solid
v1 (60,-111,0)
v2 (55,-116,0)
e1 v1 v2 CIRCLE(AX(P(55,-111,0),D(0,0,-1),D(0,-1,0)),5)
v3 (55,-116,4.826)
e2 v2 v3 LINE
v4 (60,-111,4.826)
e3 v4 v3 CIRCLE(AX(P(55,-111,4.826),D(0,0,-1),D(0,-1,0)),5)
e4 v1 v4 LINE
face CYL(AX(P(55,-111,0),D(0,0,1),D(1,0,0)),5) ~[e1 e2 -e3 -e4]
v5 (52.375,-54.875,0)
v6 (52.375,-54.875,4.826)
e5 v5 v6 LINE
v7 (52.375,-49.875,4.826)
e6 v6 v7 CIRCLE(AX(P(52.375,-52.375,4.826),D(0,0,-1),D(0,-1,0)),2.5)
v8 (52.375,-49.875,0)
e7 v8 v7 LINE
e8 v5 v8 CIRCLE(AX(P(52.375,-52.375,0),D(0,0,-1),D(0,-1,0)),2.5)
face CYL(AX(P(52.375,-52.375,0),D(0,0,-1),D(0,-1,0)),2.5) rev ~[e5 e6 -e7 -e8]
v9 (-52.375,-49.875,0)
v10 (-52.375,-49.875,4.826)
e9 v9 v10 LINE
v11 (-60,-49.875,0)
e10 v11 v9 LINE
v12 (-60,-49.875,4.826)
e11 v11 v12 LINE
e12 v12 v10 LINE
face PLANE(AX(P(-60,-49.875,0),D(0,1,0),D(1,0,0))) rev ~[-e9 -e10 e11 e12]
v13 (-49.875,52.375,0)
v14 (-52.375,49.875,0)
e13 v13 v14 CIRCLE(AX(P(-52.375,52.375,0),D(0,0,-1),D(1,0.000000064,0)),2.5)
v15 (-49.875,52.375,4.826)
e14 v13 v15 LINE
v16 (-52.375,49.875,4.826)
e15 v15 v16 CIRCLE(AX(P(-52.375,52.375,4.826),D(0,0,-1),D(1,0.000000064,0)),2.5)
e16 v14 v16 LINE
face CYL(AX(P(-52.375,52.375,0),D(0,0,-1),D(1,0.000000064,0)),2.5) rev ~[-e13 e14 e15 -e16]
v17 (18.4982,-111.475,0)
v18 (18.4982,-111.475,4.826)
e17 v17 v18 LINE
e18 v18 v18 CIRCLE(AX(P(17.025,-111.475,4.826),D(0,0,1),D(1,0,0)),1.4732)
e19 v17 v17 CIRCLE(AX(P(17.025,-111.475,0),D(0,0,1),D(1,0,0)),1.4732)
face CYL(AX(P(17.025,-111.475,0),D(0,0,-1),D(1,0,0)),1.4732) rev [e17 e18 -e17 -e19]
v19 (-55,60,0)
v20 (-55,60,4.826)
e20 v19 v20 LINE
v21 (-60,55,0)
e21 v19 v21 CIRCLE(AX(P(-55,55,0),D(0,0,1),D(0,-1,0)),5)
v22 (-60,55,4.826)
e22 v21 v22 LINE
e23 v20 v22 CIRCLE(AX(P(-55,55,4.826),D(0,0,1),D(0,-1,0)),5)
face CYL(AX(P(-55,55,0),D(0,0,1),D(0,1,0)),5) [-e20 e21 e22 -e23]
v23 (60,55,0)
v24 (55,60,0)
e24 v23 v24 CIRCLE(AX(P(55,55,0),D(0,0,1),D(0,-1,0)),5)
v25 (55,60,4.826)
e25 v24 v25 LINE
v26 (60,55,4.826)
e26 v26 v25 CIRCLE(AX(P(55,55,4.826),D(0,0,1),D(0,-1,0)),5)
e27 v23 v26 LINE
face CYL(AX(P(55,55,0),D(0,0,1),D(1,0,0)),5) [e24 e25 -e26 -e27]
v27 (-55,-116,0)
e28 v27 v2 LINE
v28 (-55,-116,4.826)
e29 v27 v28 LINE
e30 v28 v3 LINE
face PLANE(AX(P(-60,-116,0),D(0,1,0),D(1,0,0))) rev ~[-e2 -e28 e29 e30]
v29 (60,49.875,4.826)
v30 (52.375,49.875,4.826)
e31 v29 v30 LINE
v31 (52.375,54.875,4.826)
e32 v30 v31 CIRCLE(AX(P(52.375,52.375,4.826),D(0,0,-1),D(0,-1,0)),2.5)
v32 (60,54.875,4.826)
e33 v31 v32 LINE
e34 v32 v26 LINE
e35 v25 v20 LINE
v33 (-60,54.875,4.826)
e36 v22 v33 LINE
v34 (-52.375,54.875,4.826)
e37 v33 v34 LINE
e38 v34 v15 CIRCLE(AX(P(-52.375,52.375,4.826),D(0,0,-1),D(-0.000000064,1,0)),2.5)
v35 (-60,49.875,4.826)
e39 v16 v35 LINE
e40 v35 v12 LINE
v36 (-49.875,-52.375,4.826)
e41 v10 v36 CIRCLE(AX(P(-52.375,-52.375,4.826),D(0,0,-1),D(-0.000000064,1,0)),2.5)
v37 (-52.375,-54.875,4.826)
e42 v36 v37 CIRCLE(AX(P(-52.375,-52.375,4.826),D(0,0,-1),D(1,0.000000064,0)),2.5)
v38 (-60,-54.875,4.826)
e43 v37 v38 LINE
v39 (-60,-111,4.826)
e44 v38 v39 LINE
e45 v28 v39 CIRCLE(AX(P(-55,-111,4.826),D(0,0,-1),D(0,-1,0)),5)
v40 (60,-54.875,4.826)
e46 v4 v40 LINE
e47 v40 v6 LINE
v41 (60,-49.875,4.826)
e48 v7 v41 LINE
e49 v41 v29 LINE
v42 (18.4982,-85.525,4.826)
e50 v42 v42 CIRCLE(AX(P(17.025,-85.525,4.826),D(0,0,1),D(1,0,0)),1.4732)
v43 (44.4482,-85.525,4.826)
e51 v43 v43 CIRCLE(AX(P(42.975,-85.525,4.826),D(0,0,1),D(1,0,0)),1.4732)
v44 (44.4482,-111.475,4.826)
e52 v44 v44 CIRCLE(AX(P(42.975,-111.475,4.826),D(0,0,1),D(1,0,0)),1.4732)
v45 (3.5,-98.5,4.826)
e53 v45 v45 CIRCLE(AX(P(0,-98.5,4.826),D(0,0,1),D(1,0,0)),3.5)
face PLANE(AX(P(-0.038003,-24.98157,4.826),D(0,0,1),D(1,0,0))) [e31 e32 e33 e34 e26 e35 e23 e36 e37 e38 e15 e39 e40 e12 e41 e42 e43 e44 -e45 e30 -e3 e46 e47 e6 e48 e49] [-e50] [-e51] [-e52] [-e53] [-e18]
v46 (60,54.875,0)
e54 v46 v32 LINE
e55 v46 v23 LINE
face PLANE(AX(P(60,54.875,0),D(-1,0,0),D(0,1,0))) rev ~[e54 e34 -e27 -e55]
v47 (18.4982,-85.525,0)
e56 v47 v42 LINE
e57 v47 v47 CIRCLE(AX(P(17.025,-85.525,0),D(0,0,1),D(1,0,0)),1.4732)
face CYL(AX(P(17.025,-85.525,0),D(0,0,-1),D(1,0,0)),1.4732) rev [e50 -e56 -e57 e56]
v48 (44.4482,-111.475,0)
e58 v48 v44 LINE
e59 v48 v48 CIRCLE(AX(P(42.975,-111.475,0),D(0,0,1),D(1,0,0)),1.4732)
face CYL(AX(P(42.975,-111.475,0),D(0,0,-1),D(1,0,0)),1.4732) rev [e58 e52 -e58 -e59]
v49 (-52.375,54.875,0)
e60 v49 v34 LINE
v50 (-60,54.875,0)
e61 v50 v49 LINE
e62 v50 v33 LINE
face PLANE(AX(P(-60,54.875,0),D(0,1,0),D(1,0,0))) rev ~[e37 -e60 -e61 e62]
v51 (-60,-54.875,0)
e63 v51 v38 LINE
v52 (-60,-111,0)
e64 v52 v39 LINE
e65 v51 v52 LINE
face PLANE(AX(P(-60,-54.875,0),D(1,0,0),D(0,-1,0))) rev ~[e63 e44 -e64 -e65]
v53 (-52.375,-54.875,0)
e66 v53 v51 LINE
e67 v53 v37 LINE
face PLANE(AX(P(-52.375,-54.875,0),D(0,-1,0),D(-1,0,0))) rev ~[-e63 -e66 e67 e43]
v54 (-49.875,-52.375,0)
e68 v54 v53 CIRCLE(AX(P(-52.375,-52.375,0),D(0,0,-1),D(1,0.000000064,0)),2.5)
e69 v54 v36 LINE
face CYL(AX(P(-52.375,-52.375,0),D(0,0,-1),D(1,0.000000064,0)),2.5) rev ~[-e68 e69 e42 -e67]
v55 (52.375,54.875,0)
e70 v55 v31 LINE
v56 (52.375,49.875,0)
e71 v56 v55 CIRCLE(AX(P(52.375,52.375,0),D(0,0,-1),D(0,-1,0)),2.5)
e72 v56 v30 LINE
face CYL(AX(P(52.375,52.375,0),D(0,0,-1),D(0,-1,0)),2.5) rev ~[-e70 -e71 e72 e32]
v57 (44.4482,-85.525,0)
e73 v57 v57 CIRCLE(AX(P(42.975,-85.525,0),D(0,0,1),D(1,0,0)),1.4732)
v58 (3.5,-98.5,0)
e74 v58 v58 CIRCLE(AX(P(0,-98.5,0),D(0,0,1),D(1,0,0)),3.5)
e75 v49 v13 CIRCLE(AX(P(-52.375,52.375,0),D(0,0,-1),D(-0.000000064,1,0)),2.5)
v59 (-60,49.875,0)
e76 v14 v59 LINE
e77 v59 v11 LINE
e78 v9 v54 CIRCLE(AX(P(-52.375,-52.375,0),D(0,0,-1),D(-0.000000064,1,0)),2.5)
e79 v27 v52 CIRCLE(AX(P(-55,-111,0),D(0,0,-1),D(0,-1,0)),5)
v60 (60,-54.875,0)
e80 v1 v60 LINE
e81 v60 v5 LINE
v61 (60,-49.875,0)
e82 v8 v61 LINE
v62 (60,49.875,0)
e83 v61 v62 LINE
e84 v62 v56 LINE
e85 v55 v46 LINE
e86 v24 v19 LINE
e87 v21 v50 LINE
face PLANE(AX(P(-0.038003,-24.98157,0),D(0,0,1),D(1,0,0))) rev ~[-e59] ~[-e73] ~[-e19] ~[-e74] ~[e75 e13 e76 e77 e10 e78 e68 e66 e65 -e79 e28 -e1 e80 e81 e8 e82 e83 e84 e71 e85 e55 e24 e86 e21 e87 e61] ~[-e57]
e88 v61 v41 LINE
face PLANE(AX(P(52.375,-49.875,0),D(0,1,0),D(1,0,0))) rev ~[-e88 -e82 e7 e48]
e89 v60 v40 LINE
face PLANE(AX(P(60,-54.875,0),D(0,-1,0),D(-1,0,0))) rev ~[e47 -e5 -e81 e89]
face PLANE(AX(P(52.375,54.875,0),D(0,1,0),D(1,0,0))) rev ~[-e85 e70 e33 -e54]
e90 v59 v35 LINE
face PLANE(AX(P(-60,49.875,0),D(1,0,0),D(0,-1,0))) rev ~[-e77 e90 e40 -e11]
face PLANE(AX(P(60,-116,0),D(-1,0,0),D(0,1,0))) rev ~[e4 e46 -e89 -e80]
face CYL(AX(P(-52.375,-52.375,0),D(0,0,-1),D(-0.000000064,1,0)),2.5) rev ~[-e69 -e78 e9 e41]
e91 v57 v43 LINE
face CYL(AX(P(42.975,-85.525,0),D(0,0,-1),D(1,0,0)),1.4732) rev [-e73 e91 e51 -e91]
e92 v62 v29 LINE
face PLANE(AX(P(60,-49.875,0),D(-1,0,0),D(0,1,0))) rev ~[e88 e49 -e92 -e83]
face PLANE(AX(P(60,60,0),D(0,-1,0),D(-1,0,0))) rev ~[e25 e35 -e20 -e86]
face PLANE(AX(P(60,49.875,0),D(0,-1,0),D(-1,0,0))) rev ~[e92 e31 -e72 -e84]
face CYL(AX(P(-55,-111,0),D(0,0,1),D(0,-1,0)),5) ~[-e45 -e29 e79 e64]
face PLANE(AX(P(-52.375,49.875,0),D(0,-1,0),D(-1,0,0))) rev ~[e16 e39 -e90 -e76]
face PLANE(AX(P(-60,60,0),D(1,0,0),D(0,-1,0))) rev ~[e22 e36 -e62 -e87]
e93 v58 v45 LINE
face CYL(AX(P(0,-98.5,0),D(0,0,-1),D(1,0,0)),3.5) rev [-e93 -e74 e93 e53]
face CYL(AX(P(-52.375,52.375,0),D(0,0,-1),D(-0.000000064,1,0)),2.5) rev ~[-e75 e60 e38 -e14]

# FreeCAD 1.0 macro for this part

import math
import FreeCAD as App
import Part
import Sketcher


def edges_at(feature, points):
    """Names of the edges that pass closest to the given points."""
    edges = feature.Shape.Edges
    near = lambda p: min(range(len(edges)), key=lambda i: edges[i].distToShape(Part.Vertex(*p))[0])
    return sorted({f"Edge{near(p) + 1}" for p in points})

doc = App.newDocument("Part")
params = doc.addObject("Spreadsheet::Sheet", "Params")
for row, (alias, value) in enumerate([
    ("sketch1_diameter", "7 mm"),
    ("sketch1_radius", "2.5 mm"),
    ("sketch1_width", "120 mm"),
    ("sketch1_height", "99.75 mm"),
    ("pad1_length", "4.826 mm"),
    ("fillet_radius", "5 mm"),
], start=1):
    params.set(f"A{row}", alias)
    params.set(f"B{row}", "=" + value)
    params.setAlias(f"B{row}", alias)

body = doc.addObject("PartDesign::Body", "Body")

# Sketch on XY plane
sketch1 = body.newObject("Sketcher::SketchObject", "Sketch")
sketch1.AttachmentSupport = (doc.getObject("XY_Plane"), [""])
sketch1.MapMode = "FlatFace"
sketch1.addGeometry([
    Part.LineSegment(App.Vector(60, 54.9, 0), App.Vector(60, 60, 0)),  # 0
    Part.LineSegment(App.Vector(60, 60, 0), App.Vector(-60, 60, 0)),  # 1
    Part.LineSegment(App.Vector(-60, 60, 0), App.Vector(-60, 54.9, 0)),  # 2
    Part.LineSegment(App.Vector(-60, 54.9, 0), App.Vector(-52.4, 54.9, 0)),  # 3
    Part.ArcOfCircle(Part.Circle(App.Vector(-52.4, 52.4, 0), App.Vector(0, 0, 1), 2.5), math.radians(0), math.radians(90)),  # 4
    Part.ArcOfCircle(Part.Circle(App.Vector(-52.4, 52.4, 0), App.Vector(0, 0, 1), 2.5), math.radians(-90), math.radians(0)),  # 5
    Part.LineSegment(App.Vector(-52.4, 49.9, 0), App.Vector(-60, 49.9, 0)),  # 6
    Part.LineSegment(App.Vector(-60, 49.9, 0), App.Vector(-60, -49.9, 0)),  # 7
    Part.LineSegment(App.Vector(-60, -49.9, 0), App.Vector(-52.4, -49.9, 0)),  # 8
    Part.ArcOfCircle(Part.Circle(App.Vector(-52.4, -52.4, 0), App.Vector(0, 0, 1), 2.5), math.radians(0), math.radians(90)),  # 9
    Part.ArcOfCircle(Part.Circle(App.Vector(-52.4, -52.4, 0), App.Vector(0, 0, 1), 2.5), math.radians(-90), math.radians(0)),  # 10
    Part.LineSegment(App.Vector(-52.4, -54.9, 0), App.Vector(-60, -54.9, 0)),  # 11
    Part.LineSegment(App.Vector(-60, -54.9, 0), App.Vector(-60, -116, 0)),  # 12
    Part.LineSegment(App.Vector(-60, -116, 0), App.Vector(60, -116, 0)),  # 13
    Part.LineSegment(App.Vector(60, -116, 0), App.Vector(60, -54.9, 0)),  # 14
    Part.LineSegment(App.Vector(60, -54.9, 0), App.Vector(52.4, -54.9, 0)),  # 15
    Part.ArcOfCircle(Part.Circle(App.Vector(52.4, -52.4, 0), App.Vector(0, 0, 1), 2.5), math.radians(90), math.radians(270)),  # 16
    Part.LineSegment(App.Vector(52.4, -49.9, 0), App.Vector(60, -49.9, 0)),  # 17
    Part.LineSegment(App.Vector(60, -49.9, 0), App.Vector(60, 49.9, 0)),  # 18
    Part.LineSegment(App.Vector(60, 49.9, 0), App.Vector(52.4, 49.9, 0)),  # 19
    Part.ArcOfCircle(Part.Circle(App.Vector(52.4, 52.4, 0), App.Vector(0, 0, 1), 2.5), math.radians(90), math.radians(270)),  # 20
    Part.LineSegment(App.Vector(52.4, 54.9, 0), App.Vector(60, 54.9, 0)),  # 21
    Part.Circle(App.Vector(17, -111.5, 0), App.Vector(0, 0, 1), 1.5),  # 22
    Part.Circle(App.Vector(43, -111.5, 0), App.Vector(0, 0, 1), 1.5),  # 23
    Part.Circle(App.Vector(0, -98.5, 0), App.Vector(0, 0, 1), 3.5),  # 24
    Part.Circle(App.Vector(17, -85.5, 0), App.Vector(0, 0, 1), 1.5),  # 25
    Part.Circle(App.Vector(43, -85.5, 0), App.Vector(0, 0, 1), 1.5),  # 26
], False)
sketch1.addConstraint([
    Sketcher.Constraint("Coincident", 0, 2, 1, 1),
    Sketcher.Constraint("Coincident", 1, 2, 2, 1),
    Sketcher.Constraint("Coincident", 2, 2, 3, 1),
    Sketcher.Constraint("Tangent", 3, 2, 4, 2),
    Sketcher.Constraint("Tangent", 4, 1, 5, 2),
    Sketcher.Constraint("Tangent", 5, 1, 6, 1),
    Sketcher.Constraint("Coincident", 6, 2, 7, 1),
    Sketcher.Constraint("Coincident", 7, 2, 8, 1),
    Sketcher.Constraint("Tangent", 8, 2, 9, 2),
    Sketcher.Constraint("Tangent", 9, 1, 10, 2),
    Sketcher.Constraint("Tangent", 10, 1, 11, 1),
    Sketcher.Constraint("Coincident", 11, 2, 12, 1),
    Sketcher.Constraint("Coincident", 12, 2, 13, 1),
    Sketcher.Constraint("Coincident", 13, 2, 14, 1),
    Sketcher.Constraint("Coincident", 14, 2, 15, 1),
    Sketcher.Constraint("Tangent", 15, 2, 16, 2),
    Sketcher.Constraint("Tangent", 16, 1, 17, 1),
    Sketcher.Constraint("Coincident", 17, 2, 18, 1),
    Sketcher.Constraint("Coincident", 18, 2, 19, 1),
    Sketcher.Constraint("Tangent", 19, 2, 20, 2),
    Sketcher.Constraint("Tangent", 20, 1, 21, 1),
    Sketcher.Constraint("Coincident", 21, 2, 0, 1),
    Sketcher.Constraint("Vertical", 0),
    Sketcher.Constraint("Horizontal", 1),
    Sketcher.Constraint("Vertical", 2),
    Sketcher.Constraint("Horizontal", 3),
    Sketcher.Constraint("Horizontal", 6),
    Sketcher.Constraint("Vertical", 7),
    Sketcher.Constraint("Horizontal", 8),
    Sketcher.Constraint("Horizontal", 11),
    Sketcher.Constraint("Vertical", 12),
    Sketcher.Constraint("Horizontal", 13),
    Sketcher.Constraint("Vertical", 14),
    Sketcher.Constraint("Horizontal", 15),
    Sketcher.Constraint("Horizontal", 17),
    Sketcher.Constraint("Vertical", 18),
    Sketcher.Constraint("Horizontal", 19),
    Sketcher.Constraint("Horizontal", 21),
    Sketcher.Constraint("Equal", 4, 5),
    Sketcher.Constraint("Equal", 5, 9),
    Sketcher.Constraint("Equal", 9, 10),
    Sketcher.Constraint("Equal", 10, 16),
    Sketcher.Constraint("Equal", 16, 20),
    Sketcher.Constraint("Equal", 22, 23),
    Sketcher.Constraint("Equal", 23, 25),
    Sketcher.Constraint("Equal", 25, 26),
    Sketcher.Constraint("Symmetric", 4, 3, 16, 3, -1, 1),
    Sketcher.Constraint("Symmetric", 9, 3, 20, 3, -1, 1),
    Sketcher.Constraint("Symmetric", 9, 3, 16, 3, -2),
    Sketcher.Constraint("PointOnObject", 24, 3, -2),
    Sketcher.Constraint("Horizontal", 22, 3, 23, 3),
    Sketcher.Constraint("Horizontal", 25, 3, 26, 3),
    Sketcher.Constraint("Horizontal", 20, 3, 4, 1),
    Sketcher.Constraint("Horizontal", 16, 3, 9, 1),
    Sketcher.Constraint("Vertical", 22, 3, 25, 3),
    Sketcher.Constraint("Vertical", 23, 3, 26, 3),
    Sketcher.Constraint("Vertical", 2, 2, 6, 2),
    Sketcher.Constraint("Vertical", 7, 2, 11, 2),
    Sketcher.Constraint("Vertical", 0, 2, 13, 2),
    Sketcher.Constraint("Vertical", 14, 2, 17, 2),
    Sketcher.Constraint("Equal", 11, 15),
    Sketcher.Constraint("Diameter", 24, 7.0),
    Sketcher.Constraint("Radius", 4, 2.5),
    Sketcher.Constraint("DistanceX", 1, 2, 1, 1, 120.0),
    Sketcher.Constraint("DistanceY", -1, 1, 0, 2, 60.0),
    Sketcher.Constraint("DistanceY", 12, 2, -1, 1, 116.0),
    Sketcher.Constraint("Diameter", 22, 2.9464),
    Sketcher.Constraint("DistanceY", 7, 2, 7, 1, 99.75),
    Sketcher.Constraint("DistanceY", 24, 3, -1, 1, 98.5),
    Sketcher.Constraint("DistanceY", 22, 3, 16, 3, 59.1),
    Sketcher.Constraint("DistanceX", 10, 3, 22, 3, 69.4),
    Sketcher.Constraint("DistanceX", 23, 3, 16, 3, 9.4),
    Sketcher.Constraint("DistanceX", 3, 1, 3, 2, 7.625),
    Sketcher.Constraint("DistanceY", 22, 3, 25, 3, 25.95),
])
sketch1.setExpression("Constraints[61]", "Params.sketch1_diameter")
sketch1.setExpression("Constraints[62]", "Params.sketch1_radius")
sketch1.setExpression("Constraints[63]", "Params.sketch1_width")
sketch1.setExpression("Constraints[67]", "Params.sketch1_height")
pad1 = body.newObject("PartDesign::Pad", "Pad")
pad1.Profile = sketch1
pad1.setExpression("Length", "Params.pad1_length")
doc.recompute()

fillet = body.newObject("PartDesign::Fillet", "Fillet")
fillet.Base = (pad1, edges_at(pad1, [
    (-60, 60, 2.413),
    (60, 60, 2.413),
    (60, -116, 2.413),
    (-60, -116, 2.413),
]))
fillet.setExpression("Radius", "Params.fillet_radius")

doc.recompute()
